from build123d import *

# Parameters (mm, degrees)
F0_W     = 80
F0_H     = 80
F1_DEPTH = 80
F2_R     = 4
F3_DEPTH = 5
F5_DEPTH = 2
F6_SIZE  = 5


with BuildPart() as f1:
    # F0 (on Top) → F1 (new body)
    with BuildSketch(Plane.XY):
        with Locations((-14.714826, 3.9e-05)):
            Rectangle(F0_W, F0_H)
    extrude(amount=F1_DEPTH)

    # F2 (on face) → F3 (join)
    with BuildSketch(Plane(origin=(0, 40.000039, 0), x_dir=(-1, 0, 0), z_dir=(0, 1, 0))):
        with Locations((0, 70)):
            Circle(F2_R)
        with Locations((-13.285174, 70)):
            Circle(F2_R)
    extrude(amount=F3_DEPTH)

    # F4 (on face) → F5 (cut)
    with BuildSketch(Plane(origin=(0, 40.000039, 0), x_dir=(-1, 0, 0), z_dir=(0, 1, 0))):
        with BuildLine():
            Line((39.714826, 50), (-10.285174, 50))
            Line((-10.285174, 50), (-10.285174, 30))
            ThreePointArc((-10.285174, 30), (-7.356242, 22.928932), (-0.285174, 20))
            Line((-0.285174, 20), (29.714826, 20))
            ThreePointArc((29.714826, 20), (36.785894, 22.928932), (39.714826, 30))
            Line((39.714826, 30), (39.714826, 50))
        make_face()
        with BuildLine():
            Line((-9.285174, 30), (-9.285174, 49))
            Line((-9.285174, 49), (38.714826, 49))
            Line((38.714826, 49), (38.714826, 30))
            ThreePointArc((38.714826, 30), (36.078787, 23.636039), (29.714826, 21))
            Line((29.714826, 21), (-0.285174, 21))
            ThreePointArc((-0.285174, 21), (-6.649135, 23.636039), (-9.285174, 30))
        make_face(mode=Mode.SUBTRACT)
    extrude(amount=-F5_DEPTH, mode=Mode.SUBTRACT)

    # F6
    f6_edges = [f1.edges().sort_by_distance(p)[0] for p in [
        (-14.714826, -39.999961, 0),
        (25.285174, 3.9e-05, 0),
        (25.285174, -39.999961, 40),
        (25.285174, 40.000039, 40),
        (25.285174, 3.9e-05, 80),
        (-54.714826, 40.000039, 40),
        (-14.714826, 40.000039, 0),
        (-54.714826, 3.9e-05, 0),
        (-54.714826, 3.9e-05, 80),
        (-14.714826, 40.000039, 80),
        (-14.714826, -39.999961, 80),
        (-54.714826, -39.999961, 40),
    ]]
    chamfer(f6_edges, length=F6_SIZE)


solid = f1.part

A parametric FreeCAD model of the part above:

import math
import FreeCAD as App
import Part
import Sketcher

V = App.Vector
Q = App.Units.Quantity


def edges_at(feature, points):
    """Names of the edges that pass closest to the given points."""
    edges = feature.Shape.Edges
    near = lambda p: min(range(len(edges)), key=lambda i: edges[i].distToShape(Part.Vertex(*p))[0])
    return sorted({f"Edge{near(p) + 1}" for p in points})

doc = App.newDocument("Part")
params = doc.addObject("Spreadsheet::Sheet", "Params")
for row, (alias, value) in enumerate([
    ("sketch1_width", "80 mm"),
    ("pad1_length", "80 mm"),
    ("sketch2_diameter", "8 mm"),
    ("pad2_length", "5 mm"),
    ("sketch3_radius", "9.999999 mm"),
    ("sketch3_radius2", "9 mm"),
    ("sketch3_width", "50 mm"),
    ("sketch3_height", "20 mm"),
    ("sketch3_height2", "19 mm"),
    ("pocket1_length", "2 mm"),
    ("chamfer_size", "5 mm"),
], start=1):
    params.set(f"A{row}", alias)
    params.set(f"B{row}", "=" + value)
    params.setAlias(f"B{row}", alias)

body = doc.addObject("PartDesign::Body", "Body")

# Sketch on XY plane
sketch1 = doc.addObject("Sketcher::SketchObject", "Sketch")
body.addObject(sketch1)
sketch1.AttachmentSupport = (doc.XY_Plane, [""])
sketch1.MapMode = "FlatFace"
sketch1.addGeometry([
    Part.LineSegment(V(-54.714826, 40.000039, 0), V(-54.714826, -39.999961, 0)),
    Part.LineSegment(V(-54.714826, -39.999961, 0), V(25.285174, -39.999961, 0)),
    Part.LineSegment(V(25.285174, -39.999961, 0), V(25.285174, 40.000039, 0)),
    Part.LineSegment(V(25.285174, 40.000039, 0), V(-54.714826, 40.000039, 0)),
], False)
sketch1.addConstraint([
    Sketcher.Constraint("Coincident", 0, 2, 1, 1),
    Sketcher.Constraint("Coincident", 1, 2, 2, 1),
    Sketcher.Constraint("Coincident", 2, 2, 3, 1),
    Sketcher.Constraint("Coincident", 3, 2, 0, 1),
    Sketcher.Constraint("Vertical", 0),
    Sketcher.Constraint("Horizontal", 1),
    Sketcher.Constraint("Vertical", 2),
    Sketcher.Constraint("Horizontal", 3),
    Sketcher.Constraint("Equal", 3, 0),
    Sketcher.Constraint("DistanceX", 1, 1, 1, 2, Q("80 mm")),
    Sketcher.Constraint("DistanceY", 0, 2, -1, 1, Q("39.999961 mm")),
    Sketcher.Constraint("DistanceX", 0, 2, -1, 1, Q("54.714826 mm")),
])
sketch1.setExpression("Constraints[9]", "Params.sketch1_width")
pad1 = doc.addObject("PartDesign::Pad", "Pad")
body.addObject(pad1)
pad1.Profile = sketch1
pad1.setExpression("Length", "Params.pad1_length")

# Sketch on XZ plane
sketch2 = doc.addObject("Sketcher::SketchObject", "Sketch001")
body.addObject(sketch2)
sketch2.AttachmentSupport = (doc.XZ_Plane, [""])
sketch2.MapMode = "FlatFace"
sketch2.AttachmentOffset = App.Placement(V(0, 0, -40.000039), App.Rotation())
sketch2.addGeometry([
    Part.Circle(V(0, 70, 0), V(0, 0, 1), 4),
    Part.Circle(V(13.285174, 70, 0), V(0, 0, 1), 4),
], False)
sketch2.addConstraint([
    Sketcher.Constraint("Equal", 0, 1),
    Sketcher.Constraint("PointOnObject", 0, 3, -2),
    Sketcher.Constraint("Horizontal", 0, 3, 1, 3),
    Sketcher.Constraint("Diameter", 0, Q("8 mm")),
    Sketcher.Constraint("DistanceY", -1, 1, 0, 3, Q("70 mm")),
    Sketcher.Constraint("DistanceX", -1, 1, 1, 3, Q("13.285174 mm")),
])
sketch2.setExpression("Constraints[3]", "Params.sketch2_diameter")
pad2 = doc.addObject("PartDesign::Pad", "Pad001")
body.addObject(pad2)
pad2.Profile = sketch2
pad2.setExpression("Length", "Params.pad2_length")
pad2.Reversed = True

# Sketch on XZ plane
sketch3 = doc.addObject("Sketcher::SketchObject", "Sketch002")
body.addObject(sketch3)
sketch3.AttachmentSupport = (doc.XZ_Plane, [""])
sketch3.MapMode = "FlatFace"
sketch3.AttachmentOffset = App.Placement(V(0, 0, -40.000039), App.Rotation())
sketch3.addGeometry([
    Part.LineSegment(V(-39.714826, 50, 0), V(10.285174, 50, 0)),  # 0
    Part.LineSegment(V(10.285174, 50, 0), V(10.285174, 30, 0)),  # 1
    Part.ArcOfCircle(Part.Circle(V(0.285175, 29.999999, 0), V(0, 0, 1), 9.999999), math.radians(-90.000004), math.radians(0.000004)),  # 2
    Part.LineSegment(V(0.285174, 20, 0), V(-29.714826, 20, 0)),  # 3
    Part.ArcOfCircle(Part.Circle(V(-29.714827, 29.999999, 0), V(0, 0, 1), 9.999999), math.radians(179.999996), math.radians(270.000004)),  # 4
    Part.LineSegment(V(-39.714826, 30, 0), V(-39.714826, 50, 0)),  # 5
    Part.ArcOfCircle(Part.Circle(V(0.285174, 30, 0), V(0, 0, 1), 9), math.radians(-89.999999), math.radians(-0.000001)),  # 6
    Part.LineSegment(V(9.285174, 30, 0), V(9.285174, 49, 0)),  # 7
    Part.LineSegment(V(9.285174, 49, 0), V(-38.714826, 49, 0)),  # 8
    Part.LineSegment(V(-38.714826, 49, 0), V(-38.714826, 30, 0)),  # 9
    Part.ArcOfCircle(Part.Circle(V(-29.714826, 30, 0), V(0, 0, 1), 9), math.radians(-179.999999), math.radians(-90.000001)),  # 10
    Part.LineSegment(V(-29.714826, 21, 0), V(0.285174, 21, 0)),  # 11
], False)
sketch3.addConstraint([
    Sketcher.Constraint("Coincident", 0, 2, 1, 1),
    Sketcher.Constraint("Tangent", 1, 2, 2, 2),
    Sketcher.Constraint("Tangent", 2, 1, 3, 1),
    Sketcher.Constraint("Tangent", 3, 2, 4, 2),
    Sketcher.Constraint("Tangent", 4, 1, 5, 1),
    Sketcher.Constraint("Coincident", 5, 2, 0, 1),
    Sketcher.Constraint("Tangent", 6, 2, 7, 1),
    Sketcher.Constraint("Coincident", 7, 2, 8, 1),
    Sketcher.Constraint("Coincident", 8, 2, 9, 1),
    Sketcher.Constraint("Tangent", 9, 2, 10, 1),
    Sketcher.Constraint("Tangent", 10, 2, 11, 1),
    Sketcher.Constraint("Tangent", 11, 2, 6, 1),
    Sketcher.Constraint("Horizontal", 0),
    Sketcher.Constraint("Vertical", 1),
    Sketcher.Constraint("Horizontal", 3),
    Sketcher.Constraint("Vertical", 5),
    Sketcher.Constraint("Vertical", 7),
    Sketcher.Constraint("Horizontal", 8),
    Sketcher.Constraint("Vertical", 9),
    Sketcher.Constraint("Horizontal", 11),
    Sketcher.Constraint("Coincident", 6, 3, 2, 3),
    Sketcher.Constraint("Coincident", 10, 3, 4, 3),
    Sketcher.Constraint("Equal", 2, 4),
    Sketcher.Constraint("Radius", 2, Q("9.999999 mm")),
    Sketcher.Constraint("Radius", 6, Q("9 mm")),
    Sketcher.Constraint("DistanceX", 0, 1, 0, 2, Q("50 mm")),
    Sketcher.Constraint("DistanceY", 1, 2, 1, 1, Q("20 mm")),
    Sketcher.Constraint("DistanceY", 7, 1, 7, 2, Q("19 mm")),
    Sketcher.Constraint("DistanceY", -1, 1, 2, 3, Q("29.999999 mm")),
    Sketcher.Constraint("DistanceX", -1, 1, 2, 3, Q("0.285175 mm")),
])
sketch3.setExpression("Constraints[23]", "Params.sketch3_radius")
sketch3.setExpression("Constraints[24]", "Params.sketch3_radius2")
sketch3.setExpression("Constraints[25]", "Params.sketch3_width")
sketch3.setExpression("Constraints[26]", "Params.sketch3_height")
sketch3.setExpression("Constraints[27]", "Params.sketch3_height2")
pocket1 = doc.addObject("PartDesign::Pocket", "Pocket")
body.addObject(pocket1)
pocket1.Profile = sketch3
pocket1.setExpression("Length", "Params.pocket1_length")
pocket1.Reversed = True
doc.recompute()

chamfer = doc.addObject("PartDesign::Chamfer", "Chamfer")
body.addObject(chamfer)
chamfer.Base = (pocket1, edges_at(pocket1, [
    (-14.715, -40, 0),
    (25.285, 0, 0),
    (25.285, -40, 40),
    (25.285, 40, 40),
    (25.285, 0, 80),
    (-54.715, 40, 40),
    (-14.715, 40, 0),
    (-54.715, 0, 0),
    (-54.715, 0, 80),
    (-14.715, 40, 80),
    (-14.715, -40, 80),
    (-54.715, -40, 40),
]))
chamfer.setExpression("Size", "Params.chamfer_size")

doc.recompute()
